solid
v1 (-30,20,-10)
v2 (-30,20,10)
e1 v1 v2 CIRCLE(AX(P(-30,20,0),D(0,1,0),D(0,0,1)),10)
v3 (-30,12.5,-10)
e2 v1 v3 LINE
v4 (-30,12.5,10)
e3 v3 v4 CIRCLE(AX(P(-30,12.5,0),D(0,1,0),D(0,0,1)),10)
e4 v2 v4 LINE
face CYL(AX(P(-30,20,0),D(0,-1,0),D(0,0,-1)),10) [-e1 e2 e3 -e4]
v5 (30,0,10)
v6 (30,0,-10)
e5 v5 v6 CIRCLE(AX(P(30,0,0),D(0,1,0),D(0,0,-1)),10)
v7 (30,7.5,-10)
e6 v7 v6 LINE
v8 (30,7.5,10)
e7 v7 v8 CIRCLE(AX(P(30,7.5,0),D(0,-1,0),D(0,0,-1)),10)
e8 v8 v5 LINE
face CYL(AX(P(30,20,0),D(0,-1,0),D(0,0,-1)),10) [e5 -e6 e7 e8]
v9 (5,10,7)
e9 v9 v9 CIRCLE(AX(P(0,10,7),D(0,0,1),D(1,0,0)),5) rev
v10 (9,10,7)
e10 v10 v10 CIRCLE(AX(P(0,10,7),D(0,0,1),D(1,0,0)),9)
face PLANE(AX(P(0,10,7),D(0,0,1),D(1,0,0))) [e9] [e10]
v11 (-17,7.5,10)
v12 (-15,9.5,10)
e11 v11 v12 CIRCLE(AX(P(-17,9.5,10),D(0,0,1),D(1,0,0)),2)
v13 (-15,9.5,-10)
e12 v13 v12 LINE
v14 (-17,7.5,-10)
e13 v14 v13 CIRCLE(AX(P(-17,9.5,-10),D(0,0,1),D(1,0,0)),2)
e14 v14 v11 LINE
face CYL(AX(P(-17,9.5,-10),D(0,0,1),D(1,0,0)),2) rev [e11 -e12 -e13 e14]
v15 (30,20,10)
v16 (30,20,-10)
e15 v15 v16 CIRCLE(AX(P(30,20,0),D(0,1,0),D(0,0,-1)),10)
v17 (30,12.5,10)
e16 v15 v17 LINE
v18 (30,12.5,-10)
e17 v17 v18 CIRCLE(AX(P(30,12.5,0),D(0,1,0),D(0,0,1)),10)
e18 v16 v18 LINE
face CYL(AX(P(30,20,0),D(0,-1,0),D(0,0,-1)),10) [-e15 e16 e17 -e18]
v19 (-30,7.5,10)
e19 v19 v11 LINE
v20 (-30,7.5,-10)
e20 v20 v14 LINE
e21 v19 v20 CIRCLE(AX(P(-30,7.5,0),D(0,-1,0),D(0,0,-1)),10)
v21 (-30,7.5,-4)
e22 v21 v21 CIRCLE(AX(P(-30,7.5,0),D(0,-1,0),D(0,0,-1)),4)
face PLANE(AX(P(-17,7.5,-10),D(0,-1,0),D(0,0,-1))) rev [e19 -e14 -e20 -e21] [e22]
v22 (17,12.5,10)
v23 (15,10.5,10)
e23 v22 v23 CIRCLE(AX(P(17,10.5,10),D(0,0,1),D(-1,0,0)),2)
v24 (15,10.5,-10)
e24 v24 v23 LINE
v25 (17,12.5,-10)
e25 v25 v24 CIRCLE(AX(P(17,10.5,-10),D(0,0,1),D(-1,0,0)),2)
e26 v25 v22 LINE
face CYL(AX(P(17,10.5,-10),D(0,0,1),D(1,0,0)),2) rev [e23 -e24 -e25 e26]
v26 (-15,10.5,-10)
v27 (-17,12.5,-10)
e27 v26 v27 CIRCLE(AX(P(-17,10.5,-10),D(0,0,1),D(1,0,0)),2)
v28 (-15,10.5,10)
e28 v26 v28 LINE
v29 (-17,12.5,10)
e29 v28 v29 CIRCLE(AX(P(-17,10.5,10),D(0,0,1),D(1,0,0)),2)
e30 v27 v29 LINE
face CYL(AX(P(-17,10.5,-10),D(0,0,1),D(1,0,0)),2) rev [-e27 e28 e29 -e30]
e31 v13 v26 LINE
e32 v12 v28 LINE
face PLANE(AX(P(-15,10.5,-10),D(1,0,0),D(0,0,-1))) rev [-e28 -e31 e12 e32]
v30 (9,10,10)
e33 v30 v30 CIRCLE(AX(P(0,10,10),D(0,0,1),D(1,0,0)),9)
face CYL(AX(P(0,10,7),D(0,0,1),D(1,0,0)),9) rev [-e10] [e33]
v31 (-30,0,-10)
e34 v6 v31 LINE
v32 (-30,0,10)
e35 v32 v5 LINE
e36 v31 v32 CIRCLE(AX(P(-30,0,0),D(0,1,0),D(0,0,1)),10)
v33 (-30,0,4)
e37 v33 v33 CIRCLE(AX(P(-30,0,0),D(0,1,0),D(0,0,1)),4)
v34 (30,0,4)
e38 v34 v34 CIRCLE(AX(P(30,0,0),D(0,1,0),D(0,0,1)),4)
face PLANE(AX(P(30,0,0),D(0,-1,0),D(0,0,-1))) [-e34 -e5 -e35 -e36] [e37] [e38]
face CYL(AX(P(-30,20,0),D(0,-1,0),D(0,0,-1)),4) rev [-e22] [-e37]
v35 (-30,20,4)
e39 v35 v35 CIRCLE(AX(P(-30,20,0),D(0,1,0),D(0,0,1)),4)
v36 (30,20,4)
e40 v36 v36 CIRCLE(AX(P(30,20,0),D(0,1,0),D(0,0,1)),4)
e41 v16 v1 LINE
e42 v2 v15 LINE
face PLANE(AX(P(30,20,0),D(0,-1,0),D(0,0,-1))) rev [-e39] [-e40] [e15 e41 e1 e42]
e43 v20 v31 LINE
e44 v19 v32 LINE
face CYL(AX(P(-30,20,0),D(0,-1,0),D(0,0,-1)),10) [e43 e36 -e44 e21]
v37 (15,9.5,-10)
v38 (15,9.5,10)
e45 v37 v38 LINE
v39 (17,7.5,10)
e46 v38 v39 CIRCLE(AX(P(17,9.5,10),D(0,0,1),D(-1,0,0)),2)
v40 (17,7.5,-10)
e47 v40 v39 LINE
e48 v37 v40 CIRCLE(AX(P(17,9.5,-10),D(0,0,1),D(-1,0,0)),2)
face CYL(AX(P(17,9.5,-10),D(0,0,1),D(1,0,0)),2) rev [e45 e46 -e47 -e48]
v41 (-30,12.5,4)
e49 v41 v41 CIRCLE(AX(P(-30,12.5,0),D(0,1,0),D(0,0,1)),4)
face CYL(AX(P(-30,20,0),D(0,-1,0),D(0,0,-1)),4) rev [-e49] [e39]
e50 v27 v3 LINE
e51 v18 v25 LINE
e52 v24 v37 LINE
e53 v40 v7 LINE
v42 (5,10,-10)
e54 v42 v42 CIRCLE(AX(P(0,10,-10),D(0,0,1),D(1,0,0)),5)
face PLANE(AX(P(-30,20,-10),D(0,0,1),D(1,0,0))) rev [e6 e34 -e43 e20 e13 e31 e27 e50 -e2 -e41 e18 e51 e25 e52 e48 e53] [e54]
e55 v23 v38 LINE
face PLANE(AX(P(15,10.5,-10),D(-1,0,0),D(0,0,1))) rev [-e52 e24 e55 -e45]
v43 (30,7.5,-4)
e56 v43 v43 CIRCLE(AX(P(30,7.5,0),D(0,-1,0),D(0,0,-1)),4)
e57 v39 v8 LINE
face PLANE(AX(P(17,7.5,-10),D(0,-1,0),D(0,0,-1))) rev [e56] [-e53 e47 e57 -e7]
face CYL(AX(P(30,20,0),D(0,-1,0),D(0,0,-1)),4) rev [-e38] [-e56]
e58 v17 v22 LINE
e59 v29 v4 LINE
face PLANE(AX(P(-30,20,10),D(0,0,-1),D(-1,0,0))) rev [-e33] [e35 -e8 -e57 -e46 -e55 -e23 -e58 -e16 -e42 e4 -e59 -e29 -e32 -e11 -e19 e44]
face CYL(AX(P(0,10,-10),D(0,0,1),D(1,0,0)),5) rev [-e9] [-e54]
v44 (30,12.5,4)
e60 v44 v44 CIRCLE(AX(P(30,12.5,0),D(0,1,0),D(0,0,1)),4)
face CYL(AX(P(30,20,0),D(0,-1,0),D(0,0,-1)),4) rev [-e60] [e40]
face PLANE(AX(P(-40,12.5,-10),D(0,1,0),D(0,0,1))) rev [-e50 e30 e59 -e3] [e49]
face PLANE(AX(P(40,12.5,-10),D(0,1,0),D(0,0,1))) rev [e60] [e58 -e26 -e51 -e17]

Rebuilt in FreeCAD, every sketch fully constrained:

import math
import FreeCAD as App
import Part
import Sketcher
Q = App.Units.Quantity

doc = App.newDocument("Part")
params = doc.addObject("Spreadsheet::Sheet", "Params")
for row, (alias, value) in enumerate([
    ("sketch1_diameter", "8 mm"),
    ("sketch1_radius", "10 mm"),
    ("sketch1_width", "60 mm"),
    ("pad1_length", "20 mm"),
    ("sketch2_radius", "2 mm"),
    ("sketch2_width", "23 mm"),
    ("sketch2_height", "5 mm"),
    ("pocket1_length", "20 mm"),
    ("sketch3_diameter", "10 mm"),
    ("pocket2_length", "20 mm"),
    ("sketch4_diameter", "18 mm"),
    ("pocket3_length", "3 mm"),
], start=1):
    params.set(f"A{row}", alias)
    params.set(f"B{row}", "=" + value)
    params.setAlias(f"B{row}", alias)

body = doc.addObject("PartDesign::Body", "Body")

sketch1 = doc.addObject("Sketcher::SketchObject", "Sketch")
body.addObject(sketch1)
sketch1.AttachmentSupport = (doc.XZ_Plane, [""])
sketch1.MapMode = "FlatFace"
sketch1.addGeometry(Part.LineSegment(App.Vector(-30, 10, 0), App.Vector(30, 10, 0)), False)
sketch1.addGeometry(Part.ArcOfCircle(Part.Circle(App.Vector(30, 0, 0), App.Vector(0, 0, 1), 10), math.radians(-90), math.radians(90)), False)
sketch1.addGeometry(Part.LineSegment(App.Vector(30, -10, 0), App.Vector(-30, -10, 0)), False)
sketch1.addGeometry(Part.ArcOfCircle(Part.Circle(App.Vector(-30, 0, 0), App.Vector(0, 0, 1), 10), math.radians(90), math.radians(270)), False)
sketch1.addGeometry(Part.Circle(App.Vector(-30, 0, 0), App.Vector(0, 0, 1), 4), False)
sketch1.addGeometry(Part.Circle(App.Vector(30, 0, 0), App.Vector(0, 0, 1), 4), False)
sketch1.addConstraint(Sketcher.Constraint("Tangent", 0, 2, 1, 2))
sketch1.addConstraint(Sketcher.Constraint("Tangent", 1, 1, 2, 1))
sketch1.addConstraint(Sketcher.Constraint("Tangent", 2, 2, 3, 2))
sketch1.addConstraint(Sketcher.Constraint("Tangent", 3, 1, 0, 1))
sketch1.addConstraint(Sketcher.Constraint("Horizontal", 0))
sketch1.addConstraint(Sketcher.Constraint("Horizontal", 2))
sketch1.addConstraint(Sketcher.Constraint("Coincident", 4, 3, 3, 3))
sketch1.addConstraint(Sketcher.Constraint("Coincident", 5, 3, 1, 3))
sketch1.addConstraint(Sketcher.Constraint("Equal", 4, 5))
sketch1.addConstraint(Sketcher.Constraint("Symmetric", 1, 3, 3, 3, -1, 1))
sketch1.addConstraint(Sketcher.Constraint("Diameter", 4, Q("8 mm")))
sketch1.addConstraint(Sketcher.Constraint("Radius", 1, Q("10 mm")))
sketch1.addConstraint(Sketcher.Constraint("DistanceX", 0, 1, 0, 2, Q("60 mm")))
sketch1.setExpression("Constraints[10]", "Params.sketch1_diameter")
sketch1.setExpression("Constraints[11]", "Params.sketch1_radius")
sketch1.setExpression("Constraints[12]", "Params.sketch1_width")
pad1 = doc.addObject("PartDesign::Pad", "Pad")
body.addObject(pad1)
pad1.Profile = sketch1
pad1.setExpression("Length", "Params.pad1_length")
pad1.Reversed = True

sketch2 = doc.addObject("Sketcher::SketchObject", "Sketch001")
body.addObject(sketch2)
sketch2.AttachmentSupport = (doc.XY_Plane, [""])
sketch2.MapMode = "FlatFace"
sketch2.AttachmentOffset = App.Placement(App.Vector(0, 0, 10), App.Rotation())
sketch2.addGeometry(Part.LineSegment(App.Vector(-17, 12.5, 0), App.Vector(-40, 12.5, 0)), False)
sketch2.addGeometry(Part.LineSegment(App.Vector(-40, 12.5, 0), App.Vector(-40, 7.5, 0)), False)
sketch2.addGeometry(Part.LineSegment(App.Vector(-40, 7.5, 0), App.Vector(-17, 7.5, 0)), False)
sketch2.addGeometry(Part.ArcOfCircle(Part.Circle(App.Vector(-17, 9.5, 0), App.Vector(0, 0, 1), 2), math.radians(-90), math.radians(0)), False)
sketch2.addGeometry(Part.LineSegment(App.Vector(-15, 9.5, 0), App.Vector(-15, 10.5, 0)), False)
sketch2.addGeometry(Part.ArcOfCircle(Part.Circle(App.Vector(-17, 10.5, 0), App.Vector(0, 0, 1), 2), math.radians(0), math.radians(90)), False)
sketch2.addGeometry(Part.LineSegment(App.Vector(40, 7.5, 0), App.Vector(40, 12.5, 0)), False)
sketch2.addGeometry(Part.LineSegment(App.Vector(40, 12.5, 0), App.Vector(17, 12.5, 0)), False)
sketch2.addGeometry(Part.ArcOfCircle(Part.Circle(App.Vector(17, 10.5, 0), App.Vector(0, 0, 1), 2), math.radians(90), math.radians(180)), False)
sketch2.addGeometry(Part.LineSegment(App.Vector(15, 10.5, 0), App.Vector(15, 9.5, 0)), False)
sketch2.addGeometry(Part.ArcOfCircle(Part.Circle(App.Vector(17, 9.5, 0), App.Vector(0, 0, 1), 2), math.radians(-180), math.radians(-90)), False)
sketch2.addGeometry(Part.LineSegment(App.Vector(17, 7.5, 0), App.Vector(40, 7.5, 0)), False)
sketch2.addConstraint(Sketcher.Constraint("Coincident", 0, 2, 1, 1))
sketch2.addConstraint(Sketcher.Constraint("Coincident", 1, 2, 2, 1))
sketch2.addConstraint(Sketcher.Constraint("Tangent", 2, 2, 3, 1))
sketch2.addConstraint(Sketcher.Constraint("Tangent", 3, 2, 4, 1))
sketch2.addConstraint(Sketcher.Constraint("Tangent", 4, 2, 5, 1))
sketch2.addConstraint(Sketcher.Constraint("Tangent", 5, 2, 0, 1))
sketch2.addConstraint(Sketcher.Constraint("Coincident", 6, 2, 7, 1))
sketch2.addConstraint(Sketcher.Constraint("Tangent", 7, 2, 8, 1))
sketch2.addConstraint(Sketcher.Constraint("Tangent", 8, 2, 9, 1))
sketch2.addConstraint(Sketcher.Constraint("Tangent", 9, 2, 10, 1))
sketch2.addConstraint(Sketcher.Constraint("Tangent", 10, 2, 11, 1))
sketch2.addConstraint(Sketcher.Constraint("Coincident", 11, 2, 6, 1))
sketch2.addConstraint(Sketcher.Constraint("Horizontal", 0))
sketch2.addConstraint(Sketcher.Constraint("Vertical", 1))
sketch2.addConstraint(Sketcher.Constraint("Horizontal", 2))
sketch2.addConstraint(Sketcher.Constraint("Vertical", 4))
sketch2.addConstraint(Sketcher.Constraint("Vertical", 6))
sketch2.addConstraint(Sketcher.Constraint("Horizontal", 7))
sketch2.addConstraint(Sketcher.Constraint("Vertical", 9))
sketch2.addConstraint(Sketcher.Constraint("Horizontal", 11))
sketch2.addConstraint(Sketcher.Constraint("Equal", 3, 5))
sketch2.addConstraint(Sketcher.Constraint("Equal", 5, 8))
sketch2.addConstraint(Sketcher.Constraint("Equal", 8, 10))
sketch2.addConstraint(Sketcher.Constraint("Symmetric", 5, 3, 8, 3, -2))
sketch2.addConstraint(Sketcher.Constraint("Symmetric", 1, 2, 11, 2, -2))
sketch2.addConstraint(Sketcher.Constraint("Radius", 3, Q("2 mm")))
sketch2.addConstraint(Sketcher.Constraint("DistanceX", 0, 2, 0, 1, Q("23 mm")))
sketch2.addConstraint(Sketcher.Constraint("DistanceY", 1, 2, 1, 1, Q("5 mm")))
sketch2.addConstraint(Sketcher.Constraint("DistanceX", 3, 3, -1, 1, Q("17 mm")))
sketch2.addConstraint(Sketcher.Constraint("DistanceY", -1, 1, 3, 3, Q("9.5 mm")))
sketch2.setExpression("Constraints[25]", "Params.sketch2_radius")
sketch2.setExpression("Constraints[26]", "Params.sketch2_width")
sketch2.setExpression("Constraints[27]", "Params.sketch2_height")
pocket1 = doc.addObject("PartDesign::Pocket", "Pocket")
body.addObject(pocket1)
pocket1.Profile = sketch2
pocket1.setExpression("Length", "Params.pocket1_length")

sketch3 = doc.addObject("Sketcher::SketchObject", "Sketch002")
body.addObject(sketch3)
sketch3.AttachmentSupport = (doc.XY_Plane, [""])
sketch3.MapMode = "FlatFace"
sketch3.AttachmentOffset = App.Placement(App.Vector(0, 0, 10), App.Rotation())
sketch3.addGeometry(Part.Circle(App.Vector(0, 10, 0), App.Vector(0, 0, 1), 5), False)
sketch3.addConstraint(Sketcher.Constraint("PointOnObject", 0, 3, -2))
sketch3.addConstraint(Sketcher.Constraint("Diameter", 0, Q("10 mm")))
sketch3.addConstraint(Sketcher.Constraint("DistanceY", -1, 1, 0, 3, Q("10 mm")))
sketch3.setExpression("Constraints[1]", "Params.sketch3_diameter")
pocket2 = doc.addObject("PartDesign::Pocket", "Pocket001")
body.addObject(pocket2)
pocket2.Profile = sketch3
pocket2.setExpression("Length", "Params.pocket2_length")

sketch4 = doc.addObject("Sketcher::SketchObject", "Sketch003")
body.addObject(sketch4)
sketch4.AttachmentSupport = (doc.XY_Plane, [""])
sketch4.MapMode = "FlatFace"
sketch4.AttachmentOffset = App.Placement(App.Vector(0, 0, 10), App.Rotation())
sketch4.addGeometry(Part.Circle(App.Vector(0, 10, 0), App.Vector(0, 0, 1), 9), False)
sketch4.addConstraint(Sketcher.Constraint("PointOnObject", 0, 3, -2))
sketch4.addConstraint(Sketcher.Constraint("Diameter", 0, Q("18 mm")))
sketch4.addConstraint(Sketcher.Constraint("DistanceY", -1, 1, 0, 3, Q("10 mm")))
sketch4.setExpression("Constraints[1]", "Params.sketch4_diameter")
pocket3 = doc.addObject("PartDesign::Pocket", "Pocket002")
body.addObject(pocket3)
pocket3.Profile = sketch4
pocket3.setExpression("Length", "Params.pocket3_length")

doc.recompute()
